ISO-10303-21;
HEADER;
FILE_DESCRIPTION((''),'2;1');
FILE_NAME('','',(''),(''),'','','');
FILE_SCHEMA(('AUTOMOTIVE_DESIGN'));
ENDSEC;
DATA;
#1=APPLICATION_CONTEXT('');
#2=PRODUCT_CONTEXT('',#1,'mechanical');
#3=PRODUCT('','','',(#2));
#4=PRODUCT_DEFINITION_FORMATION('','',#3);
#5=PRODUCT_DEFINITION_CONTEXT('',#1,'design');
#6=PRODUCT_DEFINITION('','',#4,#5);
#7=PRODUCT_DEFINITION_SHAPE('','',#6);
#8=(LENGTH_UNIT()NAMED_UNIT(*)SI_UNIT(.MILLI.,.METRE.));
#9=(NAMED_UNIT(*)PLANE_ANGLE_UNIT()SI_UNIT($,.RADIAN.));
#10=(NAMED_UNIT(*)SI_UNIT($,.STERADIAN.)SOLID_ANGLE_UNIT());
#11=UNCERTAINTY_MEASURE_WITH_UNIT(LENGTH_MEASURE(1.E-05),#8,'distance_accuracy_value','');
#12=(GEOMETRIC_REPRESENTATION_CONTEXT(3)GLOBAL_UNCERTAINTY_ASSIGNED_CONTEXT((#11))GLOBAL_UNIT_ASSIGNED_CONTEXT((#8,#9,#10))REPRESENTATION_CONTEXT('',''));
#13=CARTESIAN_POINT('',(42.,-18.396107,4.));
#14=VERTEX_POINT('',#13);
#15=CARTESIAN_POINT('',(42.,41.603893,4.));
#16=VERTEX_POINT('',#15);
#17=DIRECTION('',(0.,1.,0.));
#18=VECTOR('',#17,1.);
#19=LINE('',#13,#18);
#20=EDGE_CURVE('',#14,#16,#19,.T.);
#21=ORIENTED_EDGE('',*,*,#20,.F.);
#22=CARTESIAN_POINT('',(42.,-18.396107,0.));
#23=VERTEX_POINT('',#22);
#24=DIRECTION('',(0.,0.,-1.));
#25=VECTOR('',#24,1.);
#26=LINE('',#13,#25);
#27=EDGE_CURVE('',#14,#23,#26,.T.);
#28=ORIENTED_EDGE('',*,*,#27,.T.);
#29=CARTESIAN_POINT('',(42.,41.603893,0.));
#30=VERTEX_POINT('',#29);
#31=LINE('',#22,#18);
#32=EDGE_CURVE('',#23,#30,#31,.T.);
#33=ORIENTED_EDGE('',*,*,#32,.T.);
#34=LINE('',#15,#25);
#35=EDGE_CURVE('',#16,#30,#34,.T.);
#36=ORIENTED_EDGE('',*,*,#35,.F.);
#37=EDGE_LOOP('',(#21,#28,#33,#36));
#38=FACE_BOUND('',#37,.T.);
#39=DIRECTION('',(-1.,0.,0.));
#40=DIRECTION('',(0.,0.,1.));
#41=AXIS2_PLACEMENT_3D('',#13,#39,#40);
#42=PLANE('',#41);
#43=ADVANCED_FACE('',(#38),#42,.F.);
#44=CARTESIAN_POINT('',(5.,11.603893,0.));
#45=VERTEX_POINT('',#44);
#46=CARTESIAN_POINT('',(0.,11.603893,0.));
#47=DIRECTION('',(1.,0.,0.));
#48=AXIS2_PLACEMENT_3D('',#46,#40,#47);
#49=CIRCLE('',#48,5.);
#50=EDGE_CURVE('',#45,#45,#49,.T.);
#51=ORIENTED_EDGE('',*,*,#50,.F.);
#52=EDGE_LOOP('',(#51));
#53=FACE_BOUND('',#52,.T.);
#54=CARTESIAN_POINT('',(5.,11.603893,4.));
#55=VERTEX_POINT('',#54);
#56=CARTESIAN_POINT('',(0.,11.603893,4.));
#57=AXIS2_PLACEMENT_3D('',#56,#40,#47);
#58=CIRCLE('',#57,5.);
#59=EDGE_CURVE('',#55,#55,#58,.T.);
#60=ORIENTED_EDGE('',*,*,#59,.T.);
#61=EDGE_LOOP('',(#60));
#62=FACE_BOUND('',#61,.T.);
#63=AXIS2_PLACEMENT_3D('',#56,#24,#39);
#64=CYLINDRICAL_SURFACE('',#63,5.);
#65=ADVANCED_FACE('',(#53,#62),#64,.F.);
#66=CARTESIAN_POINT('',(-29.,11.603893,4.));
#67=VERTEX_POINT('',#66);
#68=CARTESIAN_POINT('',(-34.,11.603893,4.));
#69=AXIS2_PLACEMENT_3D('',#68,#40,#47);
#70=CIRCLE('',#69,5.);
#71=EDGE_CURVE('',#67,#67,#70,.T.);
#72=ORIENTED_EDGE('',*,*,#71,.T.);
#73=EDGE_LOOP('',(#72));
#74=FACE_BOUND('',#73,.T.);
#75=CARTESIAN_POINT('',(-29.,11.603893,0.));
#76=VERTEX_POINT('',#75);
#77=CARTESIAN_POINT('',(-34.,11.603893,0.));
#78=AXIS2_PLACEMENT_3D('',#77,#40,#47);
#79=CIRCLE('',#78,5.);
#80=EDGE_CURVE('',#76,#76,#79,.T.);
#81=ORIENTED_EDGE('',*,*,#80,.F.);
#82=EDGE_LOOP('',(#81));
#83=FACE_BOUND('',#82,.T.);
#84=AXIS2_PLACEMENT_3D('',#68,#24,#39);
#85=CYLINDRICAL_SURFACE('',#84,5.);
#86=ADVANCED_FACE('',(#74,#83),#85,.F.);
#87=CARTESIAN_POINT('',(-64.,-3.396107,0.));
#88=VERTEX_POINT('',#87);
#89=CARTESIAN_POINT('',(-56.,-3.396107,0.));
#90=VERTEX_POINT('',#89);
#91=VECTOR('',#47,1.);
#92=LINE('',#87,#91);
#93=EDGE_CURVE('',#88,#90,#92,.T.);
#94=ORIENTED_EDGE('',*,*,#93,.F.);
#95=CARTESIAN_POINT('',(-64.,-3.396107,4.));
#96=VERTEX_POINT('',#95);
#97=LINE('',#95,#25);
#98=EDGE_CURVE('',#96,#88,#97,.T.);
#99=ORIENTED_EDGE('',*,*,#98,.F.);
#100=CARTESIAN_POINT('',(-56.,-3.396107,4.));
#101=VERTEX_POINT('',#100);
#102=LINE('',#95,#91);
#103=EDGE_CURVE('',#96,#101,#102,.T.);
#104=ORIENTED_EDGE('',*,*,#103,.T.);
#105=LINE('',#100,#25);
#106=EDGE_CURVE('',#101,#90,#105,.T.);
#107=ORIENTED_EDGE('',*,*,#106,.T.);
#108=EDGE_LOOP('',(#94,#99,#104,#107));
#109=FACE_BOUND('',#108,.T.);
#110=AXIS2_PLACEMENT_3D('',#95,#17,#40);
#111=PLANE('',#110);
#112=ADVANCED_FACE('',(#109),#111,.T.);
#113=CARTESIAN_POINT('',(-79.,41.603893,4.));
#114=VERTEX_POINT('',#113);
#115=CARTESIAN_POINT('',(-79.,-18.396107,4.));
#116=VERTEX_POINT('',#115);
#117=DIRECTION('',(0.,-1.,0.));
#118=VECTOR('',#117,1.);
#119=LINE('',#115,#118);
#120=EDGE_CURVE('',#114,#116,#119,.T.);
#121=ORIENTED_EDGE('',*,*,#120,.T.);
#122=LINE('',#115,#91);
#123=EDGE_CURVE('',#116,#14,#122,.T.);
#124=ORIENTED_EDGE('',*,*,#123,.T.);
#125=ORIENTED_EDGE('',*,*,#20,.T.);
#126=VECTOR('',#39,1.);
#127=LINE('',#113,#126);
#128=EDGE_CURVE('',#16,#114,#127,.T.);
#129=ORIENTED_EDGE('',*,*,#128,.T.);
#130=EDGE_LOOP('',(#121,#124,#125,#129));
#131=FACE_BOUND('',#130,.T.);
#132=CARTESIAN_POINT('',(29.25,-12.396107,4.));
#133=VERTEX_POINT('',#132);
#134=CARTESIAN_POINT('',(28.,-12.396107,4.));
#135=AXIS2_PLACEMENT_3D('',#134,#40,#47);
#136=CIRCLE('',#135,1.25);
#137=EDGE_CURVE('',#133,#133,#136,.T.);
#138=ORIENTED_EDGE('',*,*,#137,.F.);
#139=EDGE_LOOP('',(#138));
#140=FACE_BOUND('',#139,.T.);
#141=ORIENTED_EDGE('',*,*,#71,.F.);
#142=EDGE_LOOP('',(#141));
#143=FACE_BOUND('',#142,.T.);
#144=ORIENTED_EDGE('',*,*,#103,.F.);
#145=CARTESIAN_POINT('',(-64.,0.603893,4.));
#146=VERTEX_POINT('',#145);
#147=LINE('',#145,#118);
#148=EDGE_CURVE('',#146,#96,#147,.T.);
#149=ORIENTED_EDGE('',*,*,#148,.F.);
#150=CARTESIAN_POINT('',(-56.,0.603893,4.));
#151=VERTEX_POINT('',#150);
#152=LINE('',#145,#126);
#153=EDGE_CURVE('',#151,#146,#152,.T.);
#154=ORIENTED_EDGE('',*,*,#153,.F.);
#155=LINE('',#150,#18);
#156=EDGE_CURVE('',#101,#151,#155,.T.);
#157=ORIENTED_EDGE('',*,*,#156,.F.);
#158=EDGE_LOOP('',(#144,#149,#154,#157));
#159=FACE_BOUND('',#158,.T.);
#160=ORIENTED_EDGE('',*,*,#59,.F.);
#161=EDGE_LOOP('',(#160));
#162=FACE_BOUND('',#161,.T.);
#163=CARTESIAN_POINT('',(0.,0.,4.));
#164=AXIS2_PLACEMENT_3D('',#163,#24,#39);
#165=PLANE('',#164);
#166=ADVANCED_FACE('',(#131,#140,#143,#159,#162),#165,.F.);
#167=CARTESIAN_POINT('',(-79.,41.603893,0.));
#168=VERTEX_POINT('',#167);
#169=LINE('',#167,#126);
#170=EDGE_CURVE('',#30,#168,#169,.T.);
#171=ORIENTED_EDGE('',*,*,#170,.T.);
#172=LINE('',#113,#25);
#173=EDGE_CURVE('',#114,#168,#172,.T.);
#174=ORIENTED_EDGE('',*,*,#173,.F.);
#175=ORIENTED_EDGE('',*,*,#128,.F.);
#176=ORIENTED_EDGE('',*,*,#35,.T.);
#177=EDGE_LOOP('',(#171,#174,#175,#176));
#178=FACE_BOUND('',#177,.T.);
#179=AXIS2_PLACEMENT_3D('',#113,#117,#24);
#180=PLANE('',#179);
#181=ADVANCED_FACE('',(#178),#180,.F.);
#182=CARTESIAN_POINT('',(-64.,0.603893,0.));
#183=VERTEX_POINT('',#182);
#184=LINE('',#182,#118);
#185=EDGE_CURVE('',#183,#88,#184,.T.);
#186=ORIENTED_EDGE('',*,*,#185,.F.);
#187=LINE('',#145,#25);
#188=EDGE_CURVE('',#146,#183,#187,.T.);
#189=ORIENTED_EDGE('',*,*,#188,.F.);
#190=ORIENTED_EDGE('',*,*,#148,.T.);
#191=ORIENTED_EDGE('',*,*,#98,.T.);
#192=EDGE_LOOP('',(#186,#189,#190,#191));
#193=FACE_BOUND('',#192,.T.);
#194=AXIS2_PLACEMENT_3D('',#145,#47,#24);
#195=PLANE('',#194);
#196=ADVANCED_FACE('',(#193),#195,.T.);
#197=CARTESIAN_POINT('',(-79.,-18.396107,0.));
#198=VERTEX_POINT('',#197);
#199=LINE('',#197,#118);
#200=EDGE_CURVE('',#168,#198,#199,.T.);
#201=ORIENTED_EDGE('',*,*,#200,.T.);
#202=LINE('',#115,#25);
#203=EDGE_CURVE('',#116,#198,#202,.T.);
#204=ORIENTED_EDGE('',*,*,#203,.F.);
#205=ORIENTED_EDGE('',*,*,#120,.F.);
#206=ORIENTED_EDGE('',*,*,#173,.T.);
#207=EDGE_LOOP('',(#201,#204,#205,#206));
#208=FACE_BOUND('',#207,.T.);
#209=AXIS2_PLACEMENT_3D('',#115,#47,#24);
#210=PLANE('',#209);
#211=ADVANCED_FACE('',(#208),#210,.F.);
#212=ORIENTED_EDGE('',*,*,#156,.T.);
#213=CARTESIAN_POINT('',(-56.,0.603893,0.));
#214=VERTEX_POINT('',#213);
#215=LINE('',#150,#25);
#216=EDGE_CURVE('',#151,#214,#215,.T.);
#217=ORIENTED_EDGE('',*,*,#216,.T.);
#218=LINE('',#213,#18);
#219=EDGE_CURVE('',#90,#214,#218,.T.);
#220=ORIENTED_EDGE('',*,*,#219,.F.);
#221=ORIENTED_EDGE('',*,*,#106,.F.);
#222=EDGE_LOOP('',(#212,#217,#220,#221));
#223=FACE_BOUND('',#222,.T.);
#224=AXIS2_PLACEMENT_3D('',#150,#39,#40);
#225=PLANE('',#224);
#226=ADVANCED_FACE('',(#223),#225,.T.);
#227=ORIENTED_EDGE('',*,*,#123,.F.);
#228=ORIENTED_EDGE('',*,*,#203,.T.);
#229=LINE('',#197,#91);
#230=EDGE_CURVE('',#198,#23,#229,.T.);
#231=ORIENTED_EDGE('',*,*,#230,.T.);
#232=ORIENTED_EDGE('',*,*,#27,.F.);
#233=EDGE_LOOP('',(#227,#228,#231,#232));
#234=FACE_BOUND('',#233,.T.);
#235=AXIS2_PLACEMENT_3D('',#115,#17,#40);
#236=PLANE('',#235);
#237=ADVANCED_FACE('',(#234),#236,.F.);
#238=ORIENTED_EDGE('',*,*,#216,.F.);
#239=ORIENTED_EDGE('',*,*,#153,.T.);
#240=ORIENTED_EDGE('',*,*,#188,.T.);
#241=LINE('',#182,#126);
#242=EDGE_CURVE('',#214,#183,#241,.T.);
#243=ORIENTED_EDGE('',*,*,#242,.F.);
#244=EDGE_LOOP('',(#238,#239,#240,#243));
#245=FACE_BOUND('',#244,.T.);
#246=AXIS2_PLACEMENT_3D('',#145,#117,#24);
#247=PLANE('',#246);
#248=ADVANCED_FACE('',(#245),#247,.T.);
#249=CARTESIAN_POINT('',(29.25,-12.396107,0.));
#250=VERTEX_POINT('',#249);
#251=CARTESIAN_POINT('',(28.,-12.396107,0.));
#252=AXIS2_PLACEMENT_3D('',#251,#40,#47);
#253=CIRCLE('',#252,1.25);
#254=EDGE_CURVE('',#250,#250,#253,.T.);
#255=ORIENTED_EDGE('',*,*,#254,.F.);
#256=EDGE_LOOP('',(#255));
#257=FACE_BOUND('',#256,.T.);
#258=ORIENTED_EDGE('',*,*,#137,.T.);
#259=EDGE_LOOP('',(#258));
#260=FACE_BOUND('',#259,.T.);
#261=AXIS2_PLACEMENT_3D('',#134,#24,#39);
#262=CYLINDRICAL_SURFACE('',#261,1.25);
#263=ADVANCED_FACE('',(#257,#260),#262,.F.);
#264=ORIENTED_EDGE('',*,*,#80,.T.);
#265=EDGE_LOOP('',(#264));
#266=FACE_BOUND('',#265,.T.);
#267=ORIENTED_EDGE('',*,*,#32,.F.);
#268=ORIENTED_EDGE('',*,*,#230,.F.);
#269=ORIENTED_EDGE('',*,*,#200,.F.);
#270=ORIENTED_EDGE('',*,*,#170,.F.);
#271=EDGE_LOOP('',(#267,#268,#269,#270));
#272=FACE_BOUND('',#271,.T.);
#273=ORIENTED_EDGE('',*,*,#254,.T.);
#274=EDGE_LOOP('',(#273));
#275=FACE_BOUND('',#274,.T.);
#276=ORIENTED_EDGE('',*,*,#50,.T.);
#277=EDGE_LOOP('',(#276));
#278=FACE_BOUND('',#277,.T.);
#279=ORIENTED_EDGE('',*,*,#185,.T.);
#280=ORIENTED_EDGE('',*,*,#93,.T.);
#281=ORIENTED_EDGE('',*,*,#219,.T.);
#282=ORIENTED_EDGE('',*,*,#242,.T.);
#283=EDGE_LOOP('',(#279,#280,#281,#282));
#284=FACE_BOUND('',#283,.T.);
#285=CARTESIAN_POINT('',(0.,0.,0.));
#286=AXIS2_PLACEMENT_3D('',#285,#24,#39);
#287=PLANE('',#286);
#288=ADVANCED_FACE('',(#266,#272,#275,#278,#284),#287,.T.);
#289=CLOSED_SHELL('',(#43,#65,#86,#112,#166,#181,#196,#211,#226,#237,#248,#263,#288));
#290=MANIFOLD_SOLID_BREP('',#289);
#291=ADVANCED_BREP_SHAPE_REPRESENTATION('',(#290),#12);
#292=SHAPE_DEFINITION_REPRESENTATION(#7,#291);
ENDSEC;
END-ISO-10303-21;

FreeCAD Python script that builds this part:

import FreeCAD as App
import Part
import Sketcher
from FreeCAD import Vector
Q = App.Units.Quantity


def add_polygon(sketch, points):
    """Adds a closed chain of lines whose ends are joined by coincident constraints."""
    first, n = sketch.GeometryCount, len(points)
    for a, b in zip(points, points[1:] + points[:1]):
        sketch.addGeometry(Part.LineSegment(App.Vector(*a, 0), App.Vector(*b, 0)), False)
    for i in range(n):
        sketch.addConstraint(Sketcher.Constraint("Coincident", first + i, 2, first + (i + 1) % n, 1))

doc = App.newDocument("Part")
body = doc.addObject("PartDesign::Body", "Body")

# Sketch on XY plane
sketch1 = body.newObject("Sketcher::SketchObject", "Sketch")
sketch1.AttachmentSupport = (doc.getObject("XY_Plane"), [""])
sketch1.MapMode = "FlatFace"
add_polygon(sketch1, [(-79, 41.603893), (-79, -18.396107), (42, -18.396107), (42, 41.603893)])  # lines 0-3
add_polygon(sketch1, [(-56, -3.396107), (-64, -3.396107), (-64, 0.603893), (-56, 0.603893)])  # lines 4-7
sketch1.addGeometry(Part.Circle(Vector(28, -12.396107, 0), Vector(0, 0, 1), 1.25), False)  # 8
sketch1.addGeometry(Part.Circle(Vector(-34, 11.603893, 0), Vector(0, 0, 1), 5), False)  # 9
sketch1.addGeometry(Part.Circle(Vector(0, 11.603893, 0), Vector(0, 0, 1), 5), False)  # 10
sketch1.addConstraint(Sketcher.Constraint("Vertical", 0))
sketch1.addConstraint(Sketcher.Constraint("Horizontal", 1))
sketch1.addConstraint(Sketcher.Constraint("Vertical", 2))
sketch1.addConstraint(Sketcher.Constraint("Horizontal", 3))
sketch1.addConstraint(Sketcher.Constraint("Horizontal", 4))
sketch1.addConstraint(Sketcher.Constraint("Vertical", 5))
sketch1.addConstraint(Sketcher.Constraint("Horizontal", 6))
sketch1.addConstraint(Sketcher.Constraint("Vertical", 7))
sketch1.addConstraint(Sketcher.Constraint("Equal", 9, 10))
sketch1.addConstraint(Sketcher.Constraint("PointOnObject", 10, 3, -2))
sketch1.addConstraint(Sketcher.Constraint("Horizontal", 9, 3, 10, 3))
sketch1.addConstraint(Sketcher.Constraint("Diameter", 9, Q("10 mm")))
sketch1.addConstraint(Sketcher.Constraint("Diameter", 8, Q("2.5 mm")))
sketch1.addConstraint(Sketcher.Constraint("DistanceX", 1, 1, 1, 2, Q("121 mm")))
sketch1.addConstraint(Sketcher.Constraint("DistanceX", 4, 2, 4, 1, Q("8 mm")))
sketch1.addConstraint(Sketcher.Constraint("DistanceY", 0, 2, 0, 1, Q("60 mm")))
sketch1.addConstraint(Sketcher.Constraint("DistanceY", 5, 1, 5, 2, Q("4 mm")))
sketch1.addConstraint(Sketcher.Constraint("DistanceX", -1, 1, 8, 3, Q("28 mm")))
sketch1.addConstraint(Sketcher.Constraint("DistanceX", 9, 3, -1, 1, Q("34 mm")))
sketch1.addConstraint(Sketcher.Constraint("DistanceX", 0, 2, -1, 1, Q("79 mm")))
sketch1.addConstraint(Sketcher.Constraint("DistanceX", 4, 2, -1, 1, Q("64 mm")))
sketch1.addConstraint(Sketcher.Constraint("DistanceY", 8, 3, 9, 3, Q("24 mm")))
sketch1.addConstraint(Sketcher.Constraint("DistanceY", 0, 2, 9, 3, Q("30 mm")))
sketch1.addConstraint(Sketcher.Constraint("DistanceY", 0, 2, 4, 2, Q("15 mm")))
sketch1.addConstraint(Sketcher.Constraint("DistanceY", 8, 3, -1, 1, Q("12.396107 mm")))
pad1 = body.newObject("PartDesign::Pad", "Pad")
pad1.Profile = sketch1
pad1.Length = 4

doc.recompute()
